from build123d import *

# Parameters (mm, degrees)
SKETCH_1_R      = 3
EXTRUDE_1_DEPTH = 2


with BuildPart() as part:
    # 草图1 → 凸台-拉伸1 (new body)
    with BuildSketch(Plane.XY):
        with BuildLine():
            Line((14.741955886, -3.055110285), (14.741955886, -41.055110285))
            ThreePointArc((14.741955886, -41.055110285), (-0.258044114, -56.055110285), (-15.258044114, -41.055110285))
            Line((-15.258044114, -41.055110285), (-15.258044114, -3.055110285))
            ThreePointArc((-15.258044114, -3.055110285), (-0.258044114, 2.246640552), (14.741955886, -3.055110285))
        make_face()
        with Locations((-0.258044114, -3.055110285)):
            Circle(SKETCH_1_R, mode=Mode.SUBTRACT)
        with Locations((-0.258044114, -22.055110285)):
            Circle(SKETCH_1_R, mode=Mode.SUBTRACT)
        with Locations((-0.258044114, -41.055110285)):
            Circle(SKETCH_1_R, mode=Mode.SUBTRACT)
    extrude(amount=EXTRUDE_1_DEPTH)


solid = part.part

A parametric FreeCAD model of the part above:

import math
import FreeCAD as App
import Part
import Sketcher

V = App.Vector

doc = App.newDocument("Part")
body = doc.addObject("PartDesign::Body", "Body")

# Sketch on XY plane
sketch1 = body.newObject("Sketcher::SketchObject", "Sketch")
sketch1.AttachmentSupport = (doc.getObject("XY_Plane"), [""])
sketch1.MapMode = "FlatFace"
sketch1.addGeometry([
    Part.LineSegment(V(14.7, -41.1, 0), V(14.7, -3.1, 0)),  # 0
    Part.ArcOfCircle(Part.Circle(V(-0.3, -21.6, 0), V(0, 0, 1), 23.9), math.radians(51), math.radians(129)),  # 1
    Part.LineSegment(V(-15.3, -3.1, 0), V(-15.3, -41.1, 0)),  # 2
    Part.ArcOfCircle(Part.Circle(V(-0.3, -41.1, 0), V(0, 0, 1), 15), math.radians(180), math.radians(360)),  # 3
    Part.Circle(V(-0.3, -41.1, 0), V(0, 0, 1), 3),  # 4
    Part.Circle(V(-0.3, -22.1, 0), V(0, 0, 1), 3),  # 5
    Part.Circle(V(-0.3, -3.1, 0), V(0, 0, 1), 3),  # 6
], False)
sketch1.addConstraint([
    Sketcher.Constraint("Coincident", 0, 2, 1, 1),
    Sketcher.Constraint("Coincident", 1, 2, 2, 1),
    Sketcher.Constraint("Tangent", 2, 2, 3, 1),
    Sketcher.Constraint("Tangent", 3, 2, 0, 1),
    Sketcher.Constraint("Vertical", 0),
    Sketcher.Constraint("Vertical", 2),
    Sketcher.Constraint("Coincident", 4, 3, 3, 3),
    Sketcher.Constraint("Equal", 4, 5),
    Sketcher.Constraint("Equal", 5, 6),
    Sketcher.Constraint("Horizontal", 6, 3, 0, 2),
    Sketcher.Constraint("Horizontal", 0, 2, 1, 2),
    Sketcher.Constraint("Vertical", 4, 3, 5, 3),
    Sketcher.Constraint("Vertical", 5, 3, 6, 3),
    Sketcher.Constraint("Diameter", 4, 6.0),
    Sketcher.Constraint("Radius", 3, 15.0),
    Sketcher.Constraint("DistanceY", 0, 1, 0, 2, 38.0),
    Sketcher.Constraint("DistanceY", 3, 3, 5, 3, 19.0),
    Sketcher.Constraint("Radius", 1, 23.870281),
    Sketcher.Constraint("DistanceY", 1, 3, -1, 1, 21.62364),
    Sketcher.Constraint("DistanceX", 1, 3, -1, 1, 0.258044),
])
pad1 = body.newObject("PartDesign::Pad", "Pad")
pad1.Profile = sketch1
pad1.Length = 2

doc.recompute()
